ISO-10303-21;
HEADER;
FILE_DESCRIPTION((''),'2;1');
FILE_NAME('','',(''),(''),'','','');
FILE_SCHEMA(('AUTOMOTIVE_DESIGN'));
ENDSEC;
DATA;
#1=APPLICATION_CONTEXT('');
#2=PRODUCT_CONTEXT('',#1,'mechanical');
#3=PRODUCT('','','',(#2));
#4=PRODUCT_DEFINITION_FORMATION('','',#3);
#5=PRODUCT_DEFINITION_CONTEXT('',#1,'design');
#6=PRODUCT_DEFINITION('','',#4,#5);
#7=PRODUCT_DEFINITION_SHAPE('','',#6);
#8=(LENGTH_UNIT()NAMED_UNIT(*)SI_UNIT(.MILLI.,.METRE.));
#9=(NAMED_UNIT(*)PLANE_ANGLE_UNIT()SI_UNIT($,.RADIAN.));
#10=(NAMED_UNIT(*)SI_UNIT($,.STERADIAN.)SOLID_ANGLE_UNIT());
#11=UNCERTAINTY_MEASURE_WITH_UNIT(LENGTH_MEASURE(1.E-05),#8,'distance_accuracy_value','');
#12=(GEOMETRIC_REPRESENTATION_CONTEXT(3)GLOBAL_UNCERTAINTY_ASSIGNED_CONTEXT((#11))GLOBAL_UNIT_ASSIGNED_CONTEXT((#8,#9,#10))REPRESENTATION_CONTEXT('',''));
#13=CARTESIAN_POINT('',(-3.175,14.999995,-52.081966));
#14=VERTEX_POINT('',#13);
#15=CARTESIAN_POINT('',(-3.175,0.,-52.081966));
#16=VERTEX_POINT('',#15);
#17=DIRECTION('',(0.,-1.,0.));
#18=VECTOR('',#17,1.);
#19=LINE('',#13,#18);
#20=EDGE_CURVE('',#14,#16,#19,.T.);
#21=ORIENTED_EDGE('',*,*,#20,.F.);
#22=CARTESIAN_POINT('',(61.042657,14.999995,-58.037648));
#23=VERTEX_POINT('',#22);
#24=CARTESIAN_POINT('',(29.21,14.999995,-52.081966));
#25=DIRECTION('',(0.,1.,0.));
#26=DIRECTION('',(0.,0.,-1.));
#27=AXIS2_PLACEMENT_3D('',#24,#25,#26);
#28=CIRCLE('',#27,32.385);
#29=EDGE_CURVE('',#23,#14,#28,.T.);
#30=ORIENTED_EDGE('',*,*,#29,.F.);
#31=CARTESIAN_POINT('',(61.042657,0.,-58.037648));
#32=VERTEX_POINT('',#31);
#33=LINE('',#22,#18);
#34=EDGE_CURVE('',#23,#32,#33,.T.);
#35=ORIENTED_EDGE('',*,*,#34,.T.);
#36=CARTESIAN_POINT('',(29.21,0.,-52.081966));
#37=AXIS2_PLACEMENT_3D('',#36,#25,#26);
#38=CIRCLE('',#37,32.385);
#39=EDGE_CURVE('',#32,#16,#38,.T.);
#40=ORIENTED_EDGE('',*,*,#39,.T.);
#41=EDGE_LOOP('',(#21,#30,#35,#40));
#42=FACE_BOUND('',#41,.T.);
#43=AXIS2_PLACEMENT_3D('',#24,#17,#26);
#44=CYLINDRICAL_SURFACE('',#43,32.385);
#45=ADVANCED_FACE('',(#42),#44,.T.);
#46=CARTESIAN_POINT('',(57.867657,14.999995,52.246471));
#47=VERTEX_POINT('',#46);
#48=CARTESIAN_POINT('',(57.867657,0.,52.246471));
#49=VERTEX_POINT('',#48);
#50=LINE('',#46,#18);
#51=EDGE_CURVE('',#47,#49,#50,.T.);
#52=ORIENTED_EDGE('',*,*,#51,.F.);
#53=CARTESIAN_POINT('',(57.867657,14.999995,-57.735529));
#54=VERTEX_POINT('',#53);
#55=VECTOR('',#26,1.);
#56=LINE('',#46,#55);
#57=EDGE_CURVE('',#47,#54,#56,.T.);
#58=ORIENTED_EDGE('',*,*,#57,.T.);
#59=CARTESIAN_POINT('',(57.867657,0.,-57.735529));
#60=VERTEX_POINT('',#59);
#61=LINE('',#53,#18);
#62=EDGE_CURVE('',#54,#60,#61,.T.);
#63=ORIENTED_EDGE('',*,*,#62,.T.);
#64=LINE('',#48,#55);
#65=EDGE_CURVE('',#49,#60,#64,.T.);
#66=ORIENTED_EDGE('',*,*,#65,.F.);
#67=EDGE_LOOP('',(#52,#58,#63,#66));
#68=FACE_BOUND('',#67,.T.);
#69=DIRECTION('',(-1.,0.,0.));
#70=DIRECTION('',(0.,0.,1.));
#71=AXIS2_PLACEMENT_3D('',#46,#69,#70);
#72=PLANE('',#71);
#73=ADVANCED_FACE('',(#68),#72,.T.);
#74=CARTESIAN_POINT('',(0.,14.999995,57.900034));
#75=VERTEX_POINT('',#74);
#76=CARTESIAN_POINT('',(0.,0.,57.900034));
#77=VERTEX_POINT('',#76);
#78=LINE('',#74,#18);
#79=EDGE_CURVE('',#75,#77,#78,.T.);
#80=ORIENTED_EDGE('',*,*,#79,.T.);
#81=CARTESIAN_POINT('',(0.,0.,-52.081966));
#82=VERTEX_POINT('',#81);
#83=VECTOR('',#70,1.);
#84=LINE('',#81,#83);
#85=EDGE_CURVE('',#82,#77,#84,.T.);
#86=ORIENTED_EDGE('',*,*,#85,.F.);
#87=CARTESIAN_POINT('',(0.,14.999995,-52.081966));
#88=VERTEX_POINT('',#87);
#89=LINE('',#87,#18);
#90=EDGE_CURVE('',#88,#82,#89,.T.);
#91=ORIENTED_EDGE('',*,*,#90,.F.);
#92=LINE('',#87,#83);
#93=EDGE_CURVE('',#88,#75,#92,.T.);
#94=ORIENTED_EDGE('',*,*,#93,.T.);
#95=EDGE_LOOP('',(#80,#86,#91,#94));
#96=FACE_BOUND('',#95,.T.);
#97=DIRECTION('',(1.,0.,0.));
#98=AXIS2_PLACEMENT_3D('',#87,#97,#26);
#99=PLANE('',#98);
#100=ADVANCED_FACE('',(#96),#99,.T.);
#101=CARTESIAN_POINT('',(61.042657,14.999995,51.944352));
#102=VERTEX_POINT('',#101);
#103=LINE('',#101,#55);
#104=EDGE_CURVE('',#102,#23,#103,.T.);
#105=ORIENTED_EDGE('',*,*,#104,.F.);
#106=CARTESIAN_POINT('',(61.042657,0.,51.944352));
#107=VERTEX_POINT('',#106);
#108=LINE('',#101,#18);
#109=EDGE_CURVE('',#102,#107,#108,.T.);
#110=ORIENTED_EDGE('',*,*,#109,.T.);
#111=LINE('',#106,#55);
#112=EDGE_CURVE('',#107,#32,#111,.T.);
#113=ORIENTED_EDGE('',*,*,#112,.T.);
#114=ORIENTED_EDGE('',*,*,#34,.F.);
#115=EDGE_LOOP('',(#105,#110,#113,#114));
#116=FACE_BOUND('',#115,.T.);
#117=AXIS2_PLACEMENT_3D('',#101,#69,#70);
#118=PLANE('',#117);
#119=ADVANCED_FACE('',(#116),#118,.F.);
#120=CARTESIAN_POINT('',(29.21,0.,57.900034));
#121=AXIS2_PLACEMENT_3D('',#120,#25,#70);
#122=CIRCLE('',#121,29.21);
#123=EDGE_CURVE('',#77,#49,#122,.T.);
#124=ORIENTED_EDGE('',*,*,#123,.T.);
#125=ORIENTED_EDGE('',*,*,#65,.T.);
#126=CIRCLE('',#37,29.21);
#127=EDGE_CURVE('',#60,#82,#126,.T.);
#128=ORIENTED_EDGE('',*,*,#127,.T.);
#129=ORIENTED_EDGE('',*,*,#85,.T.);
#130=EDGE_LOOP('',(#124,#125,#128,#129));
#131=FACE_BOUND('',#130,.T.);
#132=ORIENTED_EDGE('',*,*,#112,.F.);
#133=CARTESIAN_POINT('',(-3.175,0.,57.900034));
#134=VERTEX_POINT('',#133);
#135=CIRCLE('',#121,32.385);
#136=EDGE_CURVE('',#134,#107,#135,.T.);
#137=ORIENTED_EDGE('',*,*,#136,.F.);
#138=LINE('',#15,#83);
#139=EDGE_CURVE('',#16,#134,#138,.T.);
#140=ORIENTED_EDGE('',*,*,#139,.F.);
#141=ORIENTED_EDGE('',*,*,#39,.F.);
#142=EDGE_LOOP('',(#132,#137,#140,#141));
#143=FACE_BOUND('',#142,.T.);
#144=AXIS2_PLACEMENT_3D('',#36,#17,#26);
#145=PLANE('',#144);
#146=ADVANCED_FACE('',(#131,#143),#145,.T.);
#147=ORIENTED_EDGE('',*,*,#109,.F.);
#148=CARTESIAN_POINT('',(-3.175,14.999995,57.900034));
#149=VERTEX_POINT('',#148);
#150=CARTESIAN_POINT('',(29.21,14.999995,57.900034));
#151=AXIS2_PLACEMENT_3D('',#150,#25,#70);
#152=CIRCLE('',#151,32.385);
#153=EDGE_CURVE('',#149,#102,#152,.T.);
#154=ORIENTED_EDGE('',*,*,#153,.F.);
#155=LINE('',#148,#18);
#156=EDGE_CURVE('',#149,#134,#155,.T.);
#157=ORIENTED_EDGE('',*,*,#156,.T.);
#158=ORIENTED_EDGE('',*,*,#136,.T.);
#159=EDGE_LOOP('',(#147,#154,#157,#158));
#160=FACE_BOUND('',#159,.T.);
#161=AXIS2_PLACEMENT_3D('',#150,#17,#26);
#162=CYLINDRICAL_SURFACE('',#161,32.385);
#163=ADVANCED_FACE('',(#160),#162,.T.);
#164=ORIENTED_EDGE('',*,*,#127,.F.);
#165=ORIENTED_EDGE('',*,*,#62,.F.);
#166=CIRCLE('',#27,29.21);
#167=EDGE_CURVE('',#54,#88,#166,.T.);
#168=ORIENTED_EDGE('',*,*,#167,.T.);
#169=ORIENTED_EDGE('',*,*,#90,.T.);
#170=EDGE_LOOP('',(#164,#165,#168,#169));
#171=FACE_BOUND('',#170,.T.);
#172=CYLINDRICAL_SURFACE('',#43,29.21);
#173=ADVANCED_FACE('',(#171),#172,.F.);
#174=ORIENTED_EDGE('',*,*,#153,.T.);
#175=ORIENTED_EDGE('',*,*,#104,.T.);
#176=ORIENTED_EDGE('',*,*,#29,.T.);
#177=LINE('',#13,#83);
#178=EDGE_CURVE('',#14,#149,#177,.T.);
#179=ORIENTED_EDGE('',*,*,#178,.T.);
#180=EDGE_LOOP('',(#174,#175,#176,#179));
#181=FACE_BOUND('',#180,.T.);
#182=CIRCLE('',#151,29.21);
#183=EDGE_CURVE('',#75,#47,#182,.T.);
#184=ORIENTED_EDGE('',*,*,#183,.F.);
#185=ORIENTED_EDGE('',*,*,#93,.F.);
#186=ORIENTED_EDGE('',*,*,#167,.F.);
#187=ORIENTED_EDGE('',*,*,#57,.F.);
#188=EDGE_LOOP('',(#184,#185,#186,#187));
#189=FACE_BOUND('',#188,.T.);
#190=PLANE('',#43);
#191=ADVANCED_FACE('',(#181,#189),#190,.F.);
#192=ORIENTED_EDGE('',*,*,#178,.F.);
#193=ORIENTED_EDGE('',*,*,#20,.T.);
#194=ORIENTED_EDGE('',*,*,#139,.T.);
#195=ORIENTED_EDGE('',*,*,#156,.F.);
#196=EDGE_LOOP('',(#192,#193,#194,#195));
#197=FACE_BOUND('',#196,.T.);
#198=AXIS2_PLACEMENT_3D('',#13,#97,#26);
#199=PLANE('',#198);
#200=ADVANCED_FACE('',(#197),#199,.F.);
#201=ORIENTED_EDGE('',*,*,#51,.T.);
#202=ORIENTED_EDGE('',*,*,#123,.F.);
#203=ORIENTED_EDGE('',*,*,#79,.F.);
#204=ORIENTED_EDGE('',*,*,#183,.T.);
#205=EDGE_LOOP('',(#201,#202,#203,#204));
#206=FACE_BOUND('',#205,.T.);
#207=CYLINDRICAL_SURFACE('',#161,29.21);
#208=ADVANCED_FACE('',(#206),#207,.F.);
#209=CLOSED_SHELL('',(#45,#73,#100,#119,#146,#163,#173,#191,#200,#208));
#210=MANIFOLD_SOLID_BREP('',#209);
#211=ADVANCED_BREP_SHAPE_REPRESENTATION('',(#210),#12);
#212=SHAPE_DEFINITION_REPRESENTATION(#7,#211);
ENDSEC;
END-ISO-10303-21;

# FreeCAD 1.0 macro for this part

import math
import FreeCAD as App
import Part
import Sketcher
from FreeCAD import Vector
Q = App.Units.Quantity

doc = App.newDocument("Part")
body = doc.addObject("PartDesign::Body", "Body")

# Sketch on XZ plane
sketch1 = body.newObject("Sketcher::SketchObject", "Sketch")
sketch1.AttachmentSupport = (doc.getObject("XZ_Plane"), [""])
sketch1.MapMode = "FlatFace"
sketch1.addGeometry([
    Part.LineSegment(Vector(61, 52, 0), Vector(61, -58, 0)),  # 0
    Part.ArcOfCircle(Part.Circle(Vector(29, -52, 0), Vector(0, 0, 1), 32), math.radians(180), math.radians(349)),  # 1
    Part.LineSegment(Vector(-3, -52, 0), Vector(-3, 58, 0)),  # 2
    Part.ArcOfCircle(Part.Circle(Vector(29, 58, 0), Vector(0, 0, 1), 32), math.radians(-11), math.radians(180)),  # 3
    Part.LineSegment(Vector(0, 58, 0), Vector(0, -52, 0)),  # 4
    Part.ArcOfCircle(Part.Circle(Vector(29, -52, 0), Vector(0, 0, 1), 29), math.radians(180), math.radians(349)),  # 5
    Part.LineSegment(Vector(58, -58, 0), Vector(58, 52, 0)),  # 6
    Part.ArcOfCircle(Part.Circle(Vector(29, 58, 0), Vector(0, 0, 1), 29), math.radians(-11), math.radians(180)),  # 7
], False)
sketch1.addConstraint([
    Sketcher.Constraint("Coincident", 0, 2, 1, 2),
    Sketcher.Constraint("Tangent", 1, 1, 2, 1),
    Sketcher.Constraint("Tangent", 2, 2, 3, 2),
    Sketcher.Constraint("Coincident", 3, 1, 0, 1),
    Sketcher.Constraint("Tangent", 4, 2, 5, 1),
    Sketcher.Constraint("Coincident", 5, 2, 6, 1),
    Sketcher.Constraint("Coincident", 6, 2, 7, 1),
    Sketcher.Constraint("Tangent", 7, 2, 4, 1),
    Sketcher.Constraint("Vertical", 0),
    Sketcher.Constraint("Vertical", 2),
    Sketcher.Constraint("Vertical", 4),
    Sketcher.Constraint("Vertical", 6),
    Sketcher.Constraint("Coincident", 5, 3, 1, 3),
    Sketcher.Constraint("Coincident", 7, 3, 3, 3),
    Sketcher.Constraint("Equal", 1, 3),
    Sketcher.Constraint("PointOnObject", 4, 2, -2),
    Sketcher.Constraint("Radius", 5, Q("1.15 in")),
    Sketcher.Constraint("Radius", 1, Q("1.275 in")),
    Sketcher.Constraint("DistanceY", 0, 2, 0, 1, Q("4.33 in")),
    Sketcher.Constraint("DistanceX", 5, 2, 0, 2, Q("0.125 in")),
    Sketcher.Constraint("DistanceY", 5, 2, -1, 1, 57.735529),
    Sketcher.Constraint("DistanceY", 1, 3, -1, 1, 52.081966),
])
pad1 = body.newObject("PartDesign::Pad", "Pad")
pad1.Profile = sketch1
pad1.Length = 14.999995
pad1.Reversed = True

doc.recompute()
